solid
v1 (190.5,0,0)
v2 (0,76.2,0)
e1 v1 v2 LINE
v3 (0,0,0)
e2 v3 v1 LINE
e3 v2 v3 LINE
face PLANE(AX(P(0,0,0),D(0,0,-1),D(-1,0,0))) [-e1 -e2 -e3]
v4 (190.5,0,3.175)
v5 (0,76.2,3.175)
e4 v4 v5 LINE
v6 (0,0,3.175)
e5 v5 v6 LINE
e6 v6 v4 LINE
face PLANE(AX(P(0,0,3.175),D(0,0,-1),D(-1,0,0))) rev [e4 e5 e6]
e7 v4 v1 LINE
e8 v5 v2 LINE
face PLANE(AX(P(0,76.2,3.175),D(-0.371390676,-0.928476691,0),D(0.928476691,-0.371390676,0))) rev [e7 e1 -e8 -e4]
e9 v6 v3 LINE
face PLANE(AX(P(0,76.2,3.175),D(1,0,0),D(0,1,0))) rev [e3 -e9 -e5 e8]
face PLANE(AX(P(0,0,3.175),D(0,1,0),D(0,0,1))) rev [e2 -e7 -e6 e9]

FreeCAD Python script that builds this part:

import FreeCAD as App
import Part
import Sketcher

V = App.Vector
Q = App.Units.Quantity


def add_polygon(sketch, points):
    """Adds a closed chain of lines whose ends are joined by coincident constraints."""
    first, n = sketch.GeometryCount, len(points)
    for a, b in zip(points, points[1:] + points[:1]):
        sketch.addGeometry(Part.LineSegment(App.Vector(*a, 0), App.Vector(*b, 0)), False)
    for i in range(n):
        sketch.addConstraint(Sketcher.Constraint("Coincident", first + i, 2, first + (i + 1) % n, 1))

doc = App.newDocument("Part")
body = doc.addObject("PartDesign::Body", "Body")

# Sketch on XY plane
sketch1 = doc.addObject("Sketcher::SketchObject", "Sketch")
body.addObject(sketch1)
sketch1.AttachmentSupport = (doc.XY_Plane, [""])
sketch1.MapMode = "FlatFace"
add_polygon(sketch1, [(0, 76), (0, 0), (190, 0)])  # lines 0-2
sketch1.addConstraint([
    Sketcher.Constraint("Vertical", 0),
    Sketcher.Constraint("Horizontal", 1),
    Sketcher.Constraint("Coincident", 0, 2, -1, 1),
    Sketcher.Constraint("DistanceY", 0, 2, 0, 1, Q("3 in")),
    Sketcher.Constraint("DistanceX", 1, 1, 1, 2, Q("7.5 in")),
])
pad1 = doc.addObject("PartDesign::Pad", "Pad")
body.addObject(pad1)
pad1.Profile = sketch1
pad1.Length = Q("0.125 in")

doc.recompute()
